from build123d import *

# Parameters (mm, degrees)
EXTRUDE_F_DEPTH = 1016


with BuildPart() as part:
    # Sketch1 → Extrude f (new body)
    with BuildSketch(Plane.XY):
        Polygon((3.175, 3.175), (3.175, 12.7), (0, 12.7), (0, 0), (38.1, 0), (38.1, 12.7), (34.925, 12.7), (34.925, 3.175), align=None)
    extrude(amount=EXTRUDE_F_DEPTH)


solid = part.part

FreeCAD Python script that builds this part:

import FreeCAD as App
import Part
import Sketcher

V = App.Vector
Q = App.Units.Quantity

doc = App.newDocument("Part")
body = doc.addObject("PartDesign::Body", "Body")

sketch1 = body.newObject("Sketcher::SketchObject", "Sketch")
sketch1.AttachmentSupport = (doc.getObject("XY_Plane"), [""])
sketch1.MapMode = "FlatFace"
sketch1.addGeometry([
    Part.LineSegment(V(3.2, 3.2, 0), V(3.2, 12.7, 0)),
    Part.LineSegment(V(3.2, 12.7, 0), V(0, 12.7, 0)),
    Part.LineSegment(V(0, 12.7, 0), V(0, 0, 0)),
    Part.LineSegment(V(0, 0, 0), V(38.1, 0, 0)),
    Part.LineSegment(V(38.1, 0, 0), V(38.1, 12.7, 0)),
    Part.LineSegment(V(38.1, 12.7, 0), V(34.9, 12.7, 0)),
    Part.LineSegment(V(34.9, 12.7, 0), V(34.9, 3.2, 0)),
    Part.LineSegment(V(34.9, 3.2, 0), V(3.2, 3.2, 0)),
], False)
sketch1.addConstraint([
    Sketcher.Constraint("Coincident", 0, 2, 1, 1),
    Sketcher.Constraint("Coincident", 1, 2, 2, 1),
    Sketcher.Constraint("Coincident", 2, 2, 3, 1),
    Sketcher.Constraint("Coincident", 3, 2, 4, 1),
    Sketcher.Constraint("Coincident", 4, 2, 5, 1),
    Sketcher.Constraint("Coincident", 5, 2, 6, 1),
    Sketcher.Constraint("Coincident", 6, 2, 7, 1),
    Sketcher.Constraint("Coincident", 7, 2, 0, 1),
    Sketcher.Constraint("Vertical", 0),
    Sketcher.Constraint("Horizontal", 1),
    Sketcher.Constraint("Vertical", 2),
    Sketcher.Constraint("Horizontal", 3),
    Sketcher.Constraint("Vertical", 4),
    Sketcher.Constraint("Horizontal", 5),
    Sketcher.Constraint("Vertical", 6),
    Sketcher.Constraint("Horizontal", 7),
    Sketcher.Constraint("Coincident", 2, 2, -1, 1),
    Sketcher.Constraint("Horizontal", 1, 2, 4, 2),
    Sketcher.Constraint("Equal", 1, 5),
    Sketcher.Constraint("DistanceX", 3, 1, 3, 2, Q("1.5 in")),
    Sketcher.Constraint("DistanceY", 2, 2, 2, 1, Q("0.5 in")),
    Sketcher.Constraint("DistanceX", 7, 2, 7, 1, Q("1.25 in")),
    Sketcher.Constraint("DistanceY", 0, 1, 0, 2, Q("0.375 in")),
])
pad1 = body.newObject("PartDesign::Pad", "Pad")
pad1.Profile = sketch1
pad1.Length = Q("40 in")

doc.recompute()
